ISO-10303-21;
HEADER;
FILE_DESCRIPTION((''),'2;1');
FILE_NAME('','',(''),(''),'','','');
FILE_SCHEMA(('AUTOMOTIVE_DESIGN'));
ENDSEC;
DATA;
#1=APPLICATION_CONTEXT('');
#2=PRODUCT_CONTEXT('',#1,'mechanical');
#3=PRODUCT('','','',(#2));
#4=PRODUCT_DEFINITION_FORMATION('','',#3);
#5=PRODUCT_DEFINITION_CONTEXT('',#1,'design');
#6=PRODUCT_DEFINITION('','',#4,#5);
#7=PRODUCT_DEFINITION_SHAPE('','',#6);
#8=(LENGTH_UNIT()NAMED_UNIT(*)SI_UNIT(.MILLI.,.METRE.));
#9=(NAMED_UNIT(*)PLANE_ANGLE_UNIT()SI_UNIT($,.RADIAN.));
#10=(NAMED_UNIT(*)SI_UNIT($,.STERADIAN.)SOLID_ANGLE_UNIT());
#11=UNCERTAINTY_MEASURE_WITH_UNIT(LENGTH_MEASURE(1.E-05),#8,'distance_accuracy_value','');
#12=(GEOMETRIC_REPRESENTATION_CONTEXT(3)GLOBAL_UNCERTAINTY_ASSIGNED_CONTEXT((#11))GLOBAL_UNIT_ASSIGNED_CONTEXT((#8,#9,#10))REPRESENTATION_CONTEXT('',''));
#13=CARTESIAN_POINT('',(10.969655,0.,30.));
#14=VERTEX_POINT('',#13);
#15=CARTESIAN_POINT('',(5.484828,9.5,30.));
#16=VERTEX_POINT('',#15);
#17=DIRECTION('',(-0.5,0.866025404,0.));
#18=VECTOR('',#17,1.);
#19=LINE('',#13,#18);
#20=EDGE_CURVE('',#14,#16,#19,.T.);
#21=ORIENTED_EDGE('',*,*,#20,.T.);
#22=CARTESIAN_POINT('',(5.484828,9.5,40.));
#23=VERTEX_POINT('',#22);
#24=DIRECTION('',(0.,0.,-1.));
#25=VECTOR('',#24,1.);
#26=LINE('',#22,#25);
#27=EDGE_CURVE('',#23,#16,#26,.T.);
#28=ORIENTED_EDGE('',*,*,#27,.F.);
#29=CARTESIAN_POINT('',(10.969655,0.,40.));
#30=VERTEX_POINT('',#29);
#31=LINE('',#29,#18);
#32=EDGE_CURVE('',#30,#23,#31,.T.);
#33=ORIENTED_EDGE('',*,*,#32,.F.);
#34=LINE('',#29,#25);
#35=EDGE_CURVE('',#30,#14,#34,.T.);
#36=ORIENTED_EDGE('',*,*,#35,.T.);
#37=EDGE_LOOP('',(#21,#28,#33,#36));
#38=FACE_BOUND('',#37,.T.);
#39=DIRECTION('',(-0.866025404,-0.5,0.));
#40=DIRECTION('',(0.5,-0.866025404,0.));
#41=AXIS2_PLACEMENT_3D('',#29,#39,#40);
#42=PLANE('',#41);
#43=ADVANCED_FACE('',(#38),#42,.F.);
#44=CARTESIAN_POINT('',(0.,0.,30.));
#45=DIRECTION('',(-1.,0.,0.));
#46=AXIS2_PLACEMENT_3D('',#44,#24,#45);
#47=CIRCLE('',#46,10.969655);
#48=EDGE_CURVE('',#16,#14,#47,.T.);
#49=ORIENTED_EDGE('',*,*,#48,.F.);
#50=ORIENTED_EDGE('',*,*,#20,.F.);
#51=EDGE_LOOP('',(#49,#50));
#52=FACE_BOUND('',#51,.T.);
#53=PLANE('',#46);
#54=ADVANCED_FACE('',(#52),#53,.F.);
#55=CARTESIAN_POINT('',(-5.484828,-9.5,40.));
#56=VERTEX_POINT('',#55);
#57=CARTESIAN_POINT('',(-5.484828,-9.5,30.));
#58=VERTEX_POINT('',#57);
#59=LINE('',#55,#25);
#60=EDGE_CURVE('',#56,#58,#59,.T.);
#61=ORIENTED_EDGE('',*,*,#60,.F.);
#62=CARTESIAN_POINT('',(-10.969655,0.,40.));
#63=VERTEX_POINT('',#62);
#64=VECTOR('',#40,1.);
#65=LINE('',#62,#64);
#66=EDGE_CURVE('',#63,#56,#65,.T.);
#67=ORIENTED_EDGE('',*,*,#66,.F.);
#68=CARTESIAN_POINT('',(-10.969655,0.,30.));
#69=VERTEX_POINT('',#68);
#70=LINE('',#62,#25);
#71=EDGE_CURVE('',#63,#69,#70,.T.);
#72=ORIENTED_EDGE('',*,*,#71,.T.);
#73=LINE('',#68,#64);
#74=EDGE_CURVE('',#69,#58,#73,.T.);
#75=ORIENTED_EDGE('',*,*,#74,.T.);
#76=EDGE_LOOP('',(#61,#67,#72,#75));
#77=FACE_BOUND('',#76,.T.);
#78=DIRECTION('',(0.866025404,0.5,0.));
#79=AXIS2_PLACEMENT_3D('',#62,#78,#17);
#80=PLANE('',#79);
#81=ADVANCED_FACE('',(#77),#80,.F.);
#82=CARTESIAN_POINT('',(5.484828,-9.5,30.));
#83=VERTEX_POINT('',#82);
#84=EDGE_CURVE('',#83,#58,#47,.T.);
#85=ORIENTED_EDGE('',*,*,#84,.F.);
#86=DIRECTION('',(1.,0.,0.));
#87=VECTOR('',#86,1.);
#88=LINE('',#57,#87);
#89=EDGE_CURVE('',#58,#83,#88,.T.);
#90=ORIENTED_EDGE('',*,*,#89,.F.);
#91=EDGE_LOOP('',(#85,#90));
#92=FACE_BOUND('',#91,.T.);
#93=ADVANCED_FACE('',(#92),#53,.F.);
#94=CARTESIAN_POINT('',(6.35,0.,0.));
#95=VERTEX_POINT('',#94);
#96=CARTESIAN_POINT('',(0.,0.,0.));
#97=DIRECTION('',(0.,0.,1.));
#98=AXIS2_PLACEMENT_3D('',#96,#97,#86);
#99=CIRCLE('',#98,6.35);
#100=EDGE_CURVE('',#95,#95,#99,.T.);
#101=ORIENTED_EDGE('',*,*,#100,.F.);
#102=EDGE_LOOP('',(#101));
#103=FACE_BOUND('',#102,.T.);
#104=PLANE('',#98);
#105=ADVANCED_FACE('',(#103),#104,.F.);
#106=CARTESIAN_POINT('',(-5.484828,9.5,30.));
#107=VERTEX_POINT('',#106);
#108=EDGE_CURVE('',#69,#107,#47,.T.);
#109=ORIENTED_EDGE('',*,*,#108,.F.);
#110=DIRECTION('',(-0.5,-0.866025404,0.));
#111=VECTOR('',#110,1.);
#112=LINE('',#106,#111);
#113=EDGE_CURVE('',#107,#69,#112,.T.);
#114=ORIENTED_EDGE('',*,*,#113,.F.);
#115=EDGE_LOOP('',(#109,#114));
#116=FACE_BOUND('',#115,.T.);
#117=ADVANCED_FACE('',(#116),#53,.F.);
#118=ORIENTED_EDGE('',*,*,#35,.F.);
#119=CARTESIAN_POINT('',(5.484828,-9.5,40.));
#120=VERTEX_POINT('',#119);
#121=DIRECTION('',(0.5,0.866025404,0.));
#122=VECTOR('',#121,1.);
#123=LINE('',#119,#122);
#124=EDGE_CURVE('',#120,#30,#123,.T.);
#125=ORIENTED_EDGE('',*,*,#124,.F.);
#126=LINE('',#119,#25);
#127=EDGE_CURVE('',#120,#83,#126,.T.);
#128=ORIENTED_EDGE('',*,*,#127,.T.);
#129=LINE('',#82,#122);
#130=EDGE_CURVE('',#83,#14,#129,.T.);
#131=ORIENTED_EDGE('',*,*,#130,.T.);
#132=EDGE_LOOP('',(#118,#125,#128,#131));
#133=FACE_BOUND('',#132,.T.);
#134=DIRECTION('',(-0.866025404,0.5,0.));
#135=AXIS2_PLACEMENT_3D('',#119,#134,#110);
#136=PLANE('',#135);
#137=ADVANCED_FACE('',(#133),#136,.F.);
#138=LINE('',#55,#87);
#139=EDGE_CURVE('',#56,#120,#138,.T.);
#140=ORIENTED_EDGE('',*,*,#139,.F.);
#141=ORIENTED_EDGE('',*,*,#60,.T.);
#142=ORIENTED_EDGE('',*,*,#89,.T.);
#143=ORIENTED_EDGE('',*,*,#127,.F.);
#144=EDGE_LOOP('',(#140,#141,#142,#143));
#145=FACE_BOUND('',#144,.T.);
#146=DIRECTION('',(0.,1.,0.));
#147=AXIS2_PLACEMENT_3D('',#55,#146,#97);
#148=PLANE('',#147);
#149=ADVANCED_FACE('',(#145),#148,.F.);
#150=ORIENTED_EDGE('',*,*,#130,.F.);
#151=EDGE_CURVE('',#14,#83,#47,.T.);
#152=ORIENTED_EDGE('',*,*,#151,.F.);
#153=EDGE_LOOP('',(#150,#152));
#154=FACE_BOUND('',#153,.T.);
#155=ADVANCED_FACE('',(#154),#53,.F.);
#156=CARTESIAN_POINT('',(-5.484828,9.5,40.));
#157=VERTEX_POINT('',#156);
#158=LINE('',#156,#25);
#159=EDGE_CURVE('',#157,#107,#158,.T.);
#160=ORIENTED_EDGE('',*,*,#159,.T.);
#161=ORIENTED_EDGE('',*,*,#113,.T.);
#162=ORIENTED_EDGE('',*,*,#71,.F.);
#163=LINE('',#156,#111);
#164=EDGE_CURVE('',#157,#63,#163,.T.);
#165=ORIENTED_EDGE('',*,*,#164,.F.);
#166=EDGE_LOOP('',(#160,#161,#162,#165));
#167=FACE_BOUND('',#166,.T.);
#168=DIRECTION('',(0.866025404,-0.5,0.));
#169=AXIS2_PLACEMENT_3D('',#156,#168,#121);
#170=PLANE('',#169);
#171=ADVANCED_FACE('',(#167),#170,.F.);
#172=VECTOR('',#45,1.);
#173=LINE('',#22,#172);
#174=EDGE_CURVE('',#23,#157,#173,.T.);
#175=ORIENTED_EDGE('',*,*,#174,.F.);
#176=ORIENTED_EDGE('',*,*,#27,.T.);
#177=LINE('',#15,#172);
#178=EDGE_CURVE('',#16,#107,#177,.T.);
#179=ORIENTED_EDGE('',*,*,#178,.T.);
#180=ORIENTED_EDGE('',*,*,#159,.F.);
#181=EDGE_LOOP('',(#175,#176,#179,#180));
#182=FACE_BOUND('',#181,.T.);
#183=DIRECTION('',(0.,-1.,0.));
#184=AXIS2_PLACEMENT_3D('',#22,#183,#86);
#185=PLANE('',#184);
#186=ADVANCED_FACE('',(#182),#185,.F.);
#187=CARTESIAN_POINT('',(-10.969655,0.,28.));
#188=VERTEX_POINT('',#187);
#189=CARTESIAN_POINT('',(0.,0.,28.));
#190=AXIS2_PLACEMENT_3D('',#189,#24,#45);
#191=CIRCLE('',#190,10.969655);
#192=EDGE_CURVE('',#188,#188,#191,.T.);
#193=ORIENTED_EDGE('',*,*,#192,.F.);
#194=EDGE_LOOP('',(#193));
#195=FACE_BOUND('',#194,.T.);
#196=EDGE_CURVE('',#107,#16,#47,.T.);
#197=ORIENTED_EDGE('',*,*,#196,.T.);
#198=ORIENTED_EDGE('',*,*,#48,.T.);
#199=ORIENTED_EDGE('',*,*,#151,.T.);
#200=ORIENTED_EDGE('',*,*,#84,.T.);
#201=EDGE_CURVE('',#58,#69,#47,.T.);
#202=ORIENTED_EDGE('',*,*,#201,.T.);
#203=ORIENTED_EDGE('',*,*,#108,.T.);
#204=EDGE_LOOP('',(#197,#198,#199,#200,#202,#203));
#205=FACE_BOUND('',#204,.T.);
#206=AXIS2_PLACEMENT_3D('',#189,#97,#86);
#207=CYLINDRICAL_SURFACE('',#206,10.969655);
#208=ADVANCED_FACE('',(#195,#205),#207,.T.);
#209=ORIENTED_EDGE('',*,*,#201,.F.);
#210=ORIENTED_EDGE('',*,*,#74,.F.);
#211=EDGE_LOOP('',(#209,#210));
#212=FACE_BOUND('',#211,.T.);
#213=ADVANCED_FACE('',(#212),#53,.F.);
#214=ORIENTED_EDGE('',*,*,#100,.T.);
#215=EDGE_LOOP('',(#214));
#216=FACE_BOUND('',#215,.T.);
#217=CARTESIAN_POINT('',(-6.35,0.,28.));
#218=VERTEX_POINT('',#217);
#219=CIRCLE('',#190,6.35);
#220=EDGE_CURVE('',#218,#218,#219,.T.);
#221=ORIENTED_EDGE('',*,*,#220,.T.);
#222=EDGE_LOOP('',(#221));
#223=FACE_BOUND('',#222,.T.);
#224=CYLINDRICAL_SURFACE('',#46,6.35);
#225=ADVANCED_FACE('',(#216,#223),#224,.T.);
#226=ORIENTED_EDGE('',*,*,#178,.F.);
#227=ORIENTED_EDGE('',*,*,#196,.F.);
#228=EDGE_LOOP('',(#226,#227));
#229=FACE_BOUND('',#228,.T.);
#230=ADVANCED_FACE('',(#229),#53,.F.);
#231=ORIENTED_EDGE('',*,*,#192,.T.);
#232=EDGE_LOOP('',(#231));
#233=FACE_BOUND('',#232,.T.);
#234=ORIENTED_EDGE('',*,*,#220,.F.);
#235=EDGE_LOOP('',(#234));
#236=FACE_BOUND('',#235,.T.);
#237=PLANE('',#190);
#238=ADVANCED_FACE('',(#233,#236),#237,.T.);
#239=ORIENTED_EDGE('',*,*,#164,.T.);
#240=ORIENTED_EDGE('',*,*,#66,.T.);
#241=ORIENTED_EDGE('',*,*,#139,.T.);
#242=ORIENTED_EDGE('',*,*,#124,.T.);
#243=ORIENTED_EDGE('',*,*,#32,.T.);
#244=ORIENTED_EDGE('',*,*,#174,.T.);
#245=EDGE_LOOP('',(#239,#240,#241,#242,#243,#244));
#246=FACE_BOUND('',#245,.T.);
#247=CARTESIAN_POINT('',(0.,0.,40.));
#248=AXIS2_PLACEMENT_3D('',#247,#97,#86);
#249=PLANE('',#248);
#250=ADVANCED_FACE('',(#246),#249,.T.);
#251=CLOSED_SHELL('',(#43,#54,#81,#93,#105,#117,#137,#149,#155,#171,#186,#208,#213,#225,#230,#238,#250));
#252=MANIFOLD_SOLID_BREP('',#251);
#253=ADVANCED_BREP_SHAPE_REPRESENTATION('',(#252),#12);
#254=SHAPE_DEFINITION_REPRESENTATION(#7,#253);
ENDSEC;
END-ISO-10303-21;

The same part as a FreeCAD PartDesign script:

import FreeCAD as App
import Part
import Sketcher
from FreeCAD import Vector
Q = App.Units.Quantity


def add_polygon(sketch, points):
    """Adds a closed chain of lines whose ends are joined by coincident constraints."""
    first, n = sketch.GeometryCount, len(points)
    for a, b in zip(points, points[1:] + points[:1]):
        sketch.addGeometry(Part.LineSegment(App.Vector(*a, 0), App.Vector(*b, 0)), False)
    for i in range(n):
        sketch.addConstraint(Sketcher.Constraint("Coincident", first + i, 2, first + (i + 1) % n, 1))

doc = App.newDocument("Part")
body = doc.addObject("PartDesign::Body", "Body")

sketch1 = body.newObject("Sketcher::SketchObject", "Sketch")
sketch1.AttachmentSupport = (doc.getObject("XY_Plane"), [""])
sketch1.MapMode = "FlatFace"
sketch1.addGeometry(Part.Circle(Vector(0, 0, 0), Vector(0, 0, 1), 6.35), False)
sketch1.addConstraint([
    Sketcher.Constraint("Coincident", 0, 3, -1, 1),
    Sketcher.Constraint("Diameter", 0, 12.7),
])
pad1 = body.newObject("PartDesign::Pad", "Pad")
pad1.Profile = sketch1
pad1.Length = 30

sketch2 = body.newObject("Sketcher::SketchObject", "Sketch001")
sketch2.AttachmentSupport = (doc.getObject("XY_Plane"), [""])
sketch2.MapMode = "FlatFace"
sketch2.AttachmentOffset = App.Placement(Vector(0, 0, 30), App.Rotation())
add_polygon(sketch2, [(10.969655, 0), (5.484828, 9.5), (-5.484828, 9.5), (-10.969655, 0), (-5.484828, -9.5), (5.484828, -9.5)])
sketch2.addConstraint([
    Sketcher.Constraint("Horizontal", 1),
    Sketcher.Constraint("Horizontal", 4),
    Sketcher.Constraint("Symmetric", 0, 2, 3, 2, -1, 1),
    Sketcher.Constraint("Symmetric", 2, 2, 5, 2, -1, 1),
    Sketcher.Constraint("PointOnObject", 2, 2, -1),
    Sketcher.Constraint("Parallel", 2, 5),
    Sketcher.Constraint("Vertical", 1, 2, 3, 2),
    Sketcher.Constraint("Angle", 0, Q("120 deg")),
    Sketcher.Constraint("DistanceY", 3, 2, 1, 2, 19.0),
    Sketcher.Constraint("DistanceX", 1, 2, 1, 1, 10.969655),
])
pad2 = body.newObject("PartDesign::Pad", "Pad001")
pad2.Profile = sketch2
pad2.Length = 10

sketch3 = body.newObject("Sketcher::SketchObject", "Sketch002")
sketch3.AttachmentSupport = (doc.getObject("XY_Plane"), [""])
sketch3.MapMode = "FlatFace"
sketch3.AttachmentOffset = App.Placement(Vector(0, 0, 30), App.Rotation())
sketch3.addGeometry(Part.Circle(Vector(0, 0, 0), Vector(0, 0, 1), 10.969655), False)
sketch3.addConstraint([
    Sketcher.Constraint("Coincident", 0, 3, -1, 1),
    Sketcher.Constraint("Diameter", 0, 21.93931),
])
pad3 = body.newObject("PartDesign::Pad", "Pad002")
pad3.Profile = sketch3
pad3.Length = 2
pad3.Reversed = True

doc.recompute()
